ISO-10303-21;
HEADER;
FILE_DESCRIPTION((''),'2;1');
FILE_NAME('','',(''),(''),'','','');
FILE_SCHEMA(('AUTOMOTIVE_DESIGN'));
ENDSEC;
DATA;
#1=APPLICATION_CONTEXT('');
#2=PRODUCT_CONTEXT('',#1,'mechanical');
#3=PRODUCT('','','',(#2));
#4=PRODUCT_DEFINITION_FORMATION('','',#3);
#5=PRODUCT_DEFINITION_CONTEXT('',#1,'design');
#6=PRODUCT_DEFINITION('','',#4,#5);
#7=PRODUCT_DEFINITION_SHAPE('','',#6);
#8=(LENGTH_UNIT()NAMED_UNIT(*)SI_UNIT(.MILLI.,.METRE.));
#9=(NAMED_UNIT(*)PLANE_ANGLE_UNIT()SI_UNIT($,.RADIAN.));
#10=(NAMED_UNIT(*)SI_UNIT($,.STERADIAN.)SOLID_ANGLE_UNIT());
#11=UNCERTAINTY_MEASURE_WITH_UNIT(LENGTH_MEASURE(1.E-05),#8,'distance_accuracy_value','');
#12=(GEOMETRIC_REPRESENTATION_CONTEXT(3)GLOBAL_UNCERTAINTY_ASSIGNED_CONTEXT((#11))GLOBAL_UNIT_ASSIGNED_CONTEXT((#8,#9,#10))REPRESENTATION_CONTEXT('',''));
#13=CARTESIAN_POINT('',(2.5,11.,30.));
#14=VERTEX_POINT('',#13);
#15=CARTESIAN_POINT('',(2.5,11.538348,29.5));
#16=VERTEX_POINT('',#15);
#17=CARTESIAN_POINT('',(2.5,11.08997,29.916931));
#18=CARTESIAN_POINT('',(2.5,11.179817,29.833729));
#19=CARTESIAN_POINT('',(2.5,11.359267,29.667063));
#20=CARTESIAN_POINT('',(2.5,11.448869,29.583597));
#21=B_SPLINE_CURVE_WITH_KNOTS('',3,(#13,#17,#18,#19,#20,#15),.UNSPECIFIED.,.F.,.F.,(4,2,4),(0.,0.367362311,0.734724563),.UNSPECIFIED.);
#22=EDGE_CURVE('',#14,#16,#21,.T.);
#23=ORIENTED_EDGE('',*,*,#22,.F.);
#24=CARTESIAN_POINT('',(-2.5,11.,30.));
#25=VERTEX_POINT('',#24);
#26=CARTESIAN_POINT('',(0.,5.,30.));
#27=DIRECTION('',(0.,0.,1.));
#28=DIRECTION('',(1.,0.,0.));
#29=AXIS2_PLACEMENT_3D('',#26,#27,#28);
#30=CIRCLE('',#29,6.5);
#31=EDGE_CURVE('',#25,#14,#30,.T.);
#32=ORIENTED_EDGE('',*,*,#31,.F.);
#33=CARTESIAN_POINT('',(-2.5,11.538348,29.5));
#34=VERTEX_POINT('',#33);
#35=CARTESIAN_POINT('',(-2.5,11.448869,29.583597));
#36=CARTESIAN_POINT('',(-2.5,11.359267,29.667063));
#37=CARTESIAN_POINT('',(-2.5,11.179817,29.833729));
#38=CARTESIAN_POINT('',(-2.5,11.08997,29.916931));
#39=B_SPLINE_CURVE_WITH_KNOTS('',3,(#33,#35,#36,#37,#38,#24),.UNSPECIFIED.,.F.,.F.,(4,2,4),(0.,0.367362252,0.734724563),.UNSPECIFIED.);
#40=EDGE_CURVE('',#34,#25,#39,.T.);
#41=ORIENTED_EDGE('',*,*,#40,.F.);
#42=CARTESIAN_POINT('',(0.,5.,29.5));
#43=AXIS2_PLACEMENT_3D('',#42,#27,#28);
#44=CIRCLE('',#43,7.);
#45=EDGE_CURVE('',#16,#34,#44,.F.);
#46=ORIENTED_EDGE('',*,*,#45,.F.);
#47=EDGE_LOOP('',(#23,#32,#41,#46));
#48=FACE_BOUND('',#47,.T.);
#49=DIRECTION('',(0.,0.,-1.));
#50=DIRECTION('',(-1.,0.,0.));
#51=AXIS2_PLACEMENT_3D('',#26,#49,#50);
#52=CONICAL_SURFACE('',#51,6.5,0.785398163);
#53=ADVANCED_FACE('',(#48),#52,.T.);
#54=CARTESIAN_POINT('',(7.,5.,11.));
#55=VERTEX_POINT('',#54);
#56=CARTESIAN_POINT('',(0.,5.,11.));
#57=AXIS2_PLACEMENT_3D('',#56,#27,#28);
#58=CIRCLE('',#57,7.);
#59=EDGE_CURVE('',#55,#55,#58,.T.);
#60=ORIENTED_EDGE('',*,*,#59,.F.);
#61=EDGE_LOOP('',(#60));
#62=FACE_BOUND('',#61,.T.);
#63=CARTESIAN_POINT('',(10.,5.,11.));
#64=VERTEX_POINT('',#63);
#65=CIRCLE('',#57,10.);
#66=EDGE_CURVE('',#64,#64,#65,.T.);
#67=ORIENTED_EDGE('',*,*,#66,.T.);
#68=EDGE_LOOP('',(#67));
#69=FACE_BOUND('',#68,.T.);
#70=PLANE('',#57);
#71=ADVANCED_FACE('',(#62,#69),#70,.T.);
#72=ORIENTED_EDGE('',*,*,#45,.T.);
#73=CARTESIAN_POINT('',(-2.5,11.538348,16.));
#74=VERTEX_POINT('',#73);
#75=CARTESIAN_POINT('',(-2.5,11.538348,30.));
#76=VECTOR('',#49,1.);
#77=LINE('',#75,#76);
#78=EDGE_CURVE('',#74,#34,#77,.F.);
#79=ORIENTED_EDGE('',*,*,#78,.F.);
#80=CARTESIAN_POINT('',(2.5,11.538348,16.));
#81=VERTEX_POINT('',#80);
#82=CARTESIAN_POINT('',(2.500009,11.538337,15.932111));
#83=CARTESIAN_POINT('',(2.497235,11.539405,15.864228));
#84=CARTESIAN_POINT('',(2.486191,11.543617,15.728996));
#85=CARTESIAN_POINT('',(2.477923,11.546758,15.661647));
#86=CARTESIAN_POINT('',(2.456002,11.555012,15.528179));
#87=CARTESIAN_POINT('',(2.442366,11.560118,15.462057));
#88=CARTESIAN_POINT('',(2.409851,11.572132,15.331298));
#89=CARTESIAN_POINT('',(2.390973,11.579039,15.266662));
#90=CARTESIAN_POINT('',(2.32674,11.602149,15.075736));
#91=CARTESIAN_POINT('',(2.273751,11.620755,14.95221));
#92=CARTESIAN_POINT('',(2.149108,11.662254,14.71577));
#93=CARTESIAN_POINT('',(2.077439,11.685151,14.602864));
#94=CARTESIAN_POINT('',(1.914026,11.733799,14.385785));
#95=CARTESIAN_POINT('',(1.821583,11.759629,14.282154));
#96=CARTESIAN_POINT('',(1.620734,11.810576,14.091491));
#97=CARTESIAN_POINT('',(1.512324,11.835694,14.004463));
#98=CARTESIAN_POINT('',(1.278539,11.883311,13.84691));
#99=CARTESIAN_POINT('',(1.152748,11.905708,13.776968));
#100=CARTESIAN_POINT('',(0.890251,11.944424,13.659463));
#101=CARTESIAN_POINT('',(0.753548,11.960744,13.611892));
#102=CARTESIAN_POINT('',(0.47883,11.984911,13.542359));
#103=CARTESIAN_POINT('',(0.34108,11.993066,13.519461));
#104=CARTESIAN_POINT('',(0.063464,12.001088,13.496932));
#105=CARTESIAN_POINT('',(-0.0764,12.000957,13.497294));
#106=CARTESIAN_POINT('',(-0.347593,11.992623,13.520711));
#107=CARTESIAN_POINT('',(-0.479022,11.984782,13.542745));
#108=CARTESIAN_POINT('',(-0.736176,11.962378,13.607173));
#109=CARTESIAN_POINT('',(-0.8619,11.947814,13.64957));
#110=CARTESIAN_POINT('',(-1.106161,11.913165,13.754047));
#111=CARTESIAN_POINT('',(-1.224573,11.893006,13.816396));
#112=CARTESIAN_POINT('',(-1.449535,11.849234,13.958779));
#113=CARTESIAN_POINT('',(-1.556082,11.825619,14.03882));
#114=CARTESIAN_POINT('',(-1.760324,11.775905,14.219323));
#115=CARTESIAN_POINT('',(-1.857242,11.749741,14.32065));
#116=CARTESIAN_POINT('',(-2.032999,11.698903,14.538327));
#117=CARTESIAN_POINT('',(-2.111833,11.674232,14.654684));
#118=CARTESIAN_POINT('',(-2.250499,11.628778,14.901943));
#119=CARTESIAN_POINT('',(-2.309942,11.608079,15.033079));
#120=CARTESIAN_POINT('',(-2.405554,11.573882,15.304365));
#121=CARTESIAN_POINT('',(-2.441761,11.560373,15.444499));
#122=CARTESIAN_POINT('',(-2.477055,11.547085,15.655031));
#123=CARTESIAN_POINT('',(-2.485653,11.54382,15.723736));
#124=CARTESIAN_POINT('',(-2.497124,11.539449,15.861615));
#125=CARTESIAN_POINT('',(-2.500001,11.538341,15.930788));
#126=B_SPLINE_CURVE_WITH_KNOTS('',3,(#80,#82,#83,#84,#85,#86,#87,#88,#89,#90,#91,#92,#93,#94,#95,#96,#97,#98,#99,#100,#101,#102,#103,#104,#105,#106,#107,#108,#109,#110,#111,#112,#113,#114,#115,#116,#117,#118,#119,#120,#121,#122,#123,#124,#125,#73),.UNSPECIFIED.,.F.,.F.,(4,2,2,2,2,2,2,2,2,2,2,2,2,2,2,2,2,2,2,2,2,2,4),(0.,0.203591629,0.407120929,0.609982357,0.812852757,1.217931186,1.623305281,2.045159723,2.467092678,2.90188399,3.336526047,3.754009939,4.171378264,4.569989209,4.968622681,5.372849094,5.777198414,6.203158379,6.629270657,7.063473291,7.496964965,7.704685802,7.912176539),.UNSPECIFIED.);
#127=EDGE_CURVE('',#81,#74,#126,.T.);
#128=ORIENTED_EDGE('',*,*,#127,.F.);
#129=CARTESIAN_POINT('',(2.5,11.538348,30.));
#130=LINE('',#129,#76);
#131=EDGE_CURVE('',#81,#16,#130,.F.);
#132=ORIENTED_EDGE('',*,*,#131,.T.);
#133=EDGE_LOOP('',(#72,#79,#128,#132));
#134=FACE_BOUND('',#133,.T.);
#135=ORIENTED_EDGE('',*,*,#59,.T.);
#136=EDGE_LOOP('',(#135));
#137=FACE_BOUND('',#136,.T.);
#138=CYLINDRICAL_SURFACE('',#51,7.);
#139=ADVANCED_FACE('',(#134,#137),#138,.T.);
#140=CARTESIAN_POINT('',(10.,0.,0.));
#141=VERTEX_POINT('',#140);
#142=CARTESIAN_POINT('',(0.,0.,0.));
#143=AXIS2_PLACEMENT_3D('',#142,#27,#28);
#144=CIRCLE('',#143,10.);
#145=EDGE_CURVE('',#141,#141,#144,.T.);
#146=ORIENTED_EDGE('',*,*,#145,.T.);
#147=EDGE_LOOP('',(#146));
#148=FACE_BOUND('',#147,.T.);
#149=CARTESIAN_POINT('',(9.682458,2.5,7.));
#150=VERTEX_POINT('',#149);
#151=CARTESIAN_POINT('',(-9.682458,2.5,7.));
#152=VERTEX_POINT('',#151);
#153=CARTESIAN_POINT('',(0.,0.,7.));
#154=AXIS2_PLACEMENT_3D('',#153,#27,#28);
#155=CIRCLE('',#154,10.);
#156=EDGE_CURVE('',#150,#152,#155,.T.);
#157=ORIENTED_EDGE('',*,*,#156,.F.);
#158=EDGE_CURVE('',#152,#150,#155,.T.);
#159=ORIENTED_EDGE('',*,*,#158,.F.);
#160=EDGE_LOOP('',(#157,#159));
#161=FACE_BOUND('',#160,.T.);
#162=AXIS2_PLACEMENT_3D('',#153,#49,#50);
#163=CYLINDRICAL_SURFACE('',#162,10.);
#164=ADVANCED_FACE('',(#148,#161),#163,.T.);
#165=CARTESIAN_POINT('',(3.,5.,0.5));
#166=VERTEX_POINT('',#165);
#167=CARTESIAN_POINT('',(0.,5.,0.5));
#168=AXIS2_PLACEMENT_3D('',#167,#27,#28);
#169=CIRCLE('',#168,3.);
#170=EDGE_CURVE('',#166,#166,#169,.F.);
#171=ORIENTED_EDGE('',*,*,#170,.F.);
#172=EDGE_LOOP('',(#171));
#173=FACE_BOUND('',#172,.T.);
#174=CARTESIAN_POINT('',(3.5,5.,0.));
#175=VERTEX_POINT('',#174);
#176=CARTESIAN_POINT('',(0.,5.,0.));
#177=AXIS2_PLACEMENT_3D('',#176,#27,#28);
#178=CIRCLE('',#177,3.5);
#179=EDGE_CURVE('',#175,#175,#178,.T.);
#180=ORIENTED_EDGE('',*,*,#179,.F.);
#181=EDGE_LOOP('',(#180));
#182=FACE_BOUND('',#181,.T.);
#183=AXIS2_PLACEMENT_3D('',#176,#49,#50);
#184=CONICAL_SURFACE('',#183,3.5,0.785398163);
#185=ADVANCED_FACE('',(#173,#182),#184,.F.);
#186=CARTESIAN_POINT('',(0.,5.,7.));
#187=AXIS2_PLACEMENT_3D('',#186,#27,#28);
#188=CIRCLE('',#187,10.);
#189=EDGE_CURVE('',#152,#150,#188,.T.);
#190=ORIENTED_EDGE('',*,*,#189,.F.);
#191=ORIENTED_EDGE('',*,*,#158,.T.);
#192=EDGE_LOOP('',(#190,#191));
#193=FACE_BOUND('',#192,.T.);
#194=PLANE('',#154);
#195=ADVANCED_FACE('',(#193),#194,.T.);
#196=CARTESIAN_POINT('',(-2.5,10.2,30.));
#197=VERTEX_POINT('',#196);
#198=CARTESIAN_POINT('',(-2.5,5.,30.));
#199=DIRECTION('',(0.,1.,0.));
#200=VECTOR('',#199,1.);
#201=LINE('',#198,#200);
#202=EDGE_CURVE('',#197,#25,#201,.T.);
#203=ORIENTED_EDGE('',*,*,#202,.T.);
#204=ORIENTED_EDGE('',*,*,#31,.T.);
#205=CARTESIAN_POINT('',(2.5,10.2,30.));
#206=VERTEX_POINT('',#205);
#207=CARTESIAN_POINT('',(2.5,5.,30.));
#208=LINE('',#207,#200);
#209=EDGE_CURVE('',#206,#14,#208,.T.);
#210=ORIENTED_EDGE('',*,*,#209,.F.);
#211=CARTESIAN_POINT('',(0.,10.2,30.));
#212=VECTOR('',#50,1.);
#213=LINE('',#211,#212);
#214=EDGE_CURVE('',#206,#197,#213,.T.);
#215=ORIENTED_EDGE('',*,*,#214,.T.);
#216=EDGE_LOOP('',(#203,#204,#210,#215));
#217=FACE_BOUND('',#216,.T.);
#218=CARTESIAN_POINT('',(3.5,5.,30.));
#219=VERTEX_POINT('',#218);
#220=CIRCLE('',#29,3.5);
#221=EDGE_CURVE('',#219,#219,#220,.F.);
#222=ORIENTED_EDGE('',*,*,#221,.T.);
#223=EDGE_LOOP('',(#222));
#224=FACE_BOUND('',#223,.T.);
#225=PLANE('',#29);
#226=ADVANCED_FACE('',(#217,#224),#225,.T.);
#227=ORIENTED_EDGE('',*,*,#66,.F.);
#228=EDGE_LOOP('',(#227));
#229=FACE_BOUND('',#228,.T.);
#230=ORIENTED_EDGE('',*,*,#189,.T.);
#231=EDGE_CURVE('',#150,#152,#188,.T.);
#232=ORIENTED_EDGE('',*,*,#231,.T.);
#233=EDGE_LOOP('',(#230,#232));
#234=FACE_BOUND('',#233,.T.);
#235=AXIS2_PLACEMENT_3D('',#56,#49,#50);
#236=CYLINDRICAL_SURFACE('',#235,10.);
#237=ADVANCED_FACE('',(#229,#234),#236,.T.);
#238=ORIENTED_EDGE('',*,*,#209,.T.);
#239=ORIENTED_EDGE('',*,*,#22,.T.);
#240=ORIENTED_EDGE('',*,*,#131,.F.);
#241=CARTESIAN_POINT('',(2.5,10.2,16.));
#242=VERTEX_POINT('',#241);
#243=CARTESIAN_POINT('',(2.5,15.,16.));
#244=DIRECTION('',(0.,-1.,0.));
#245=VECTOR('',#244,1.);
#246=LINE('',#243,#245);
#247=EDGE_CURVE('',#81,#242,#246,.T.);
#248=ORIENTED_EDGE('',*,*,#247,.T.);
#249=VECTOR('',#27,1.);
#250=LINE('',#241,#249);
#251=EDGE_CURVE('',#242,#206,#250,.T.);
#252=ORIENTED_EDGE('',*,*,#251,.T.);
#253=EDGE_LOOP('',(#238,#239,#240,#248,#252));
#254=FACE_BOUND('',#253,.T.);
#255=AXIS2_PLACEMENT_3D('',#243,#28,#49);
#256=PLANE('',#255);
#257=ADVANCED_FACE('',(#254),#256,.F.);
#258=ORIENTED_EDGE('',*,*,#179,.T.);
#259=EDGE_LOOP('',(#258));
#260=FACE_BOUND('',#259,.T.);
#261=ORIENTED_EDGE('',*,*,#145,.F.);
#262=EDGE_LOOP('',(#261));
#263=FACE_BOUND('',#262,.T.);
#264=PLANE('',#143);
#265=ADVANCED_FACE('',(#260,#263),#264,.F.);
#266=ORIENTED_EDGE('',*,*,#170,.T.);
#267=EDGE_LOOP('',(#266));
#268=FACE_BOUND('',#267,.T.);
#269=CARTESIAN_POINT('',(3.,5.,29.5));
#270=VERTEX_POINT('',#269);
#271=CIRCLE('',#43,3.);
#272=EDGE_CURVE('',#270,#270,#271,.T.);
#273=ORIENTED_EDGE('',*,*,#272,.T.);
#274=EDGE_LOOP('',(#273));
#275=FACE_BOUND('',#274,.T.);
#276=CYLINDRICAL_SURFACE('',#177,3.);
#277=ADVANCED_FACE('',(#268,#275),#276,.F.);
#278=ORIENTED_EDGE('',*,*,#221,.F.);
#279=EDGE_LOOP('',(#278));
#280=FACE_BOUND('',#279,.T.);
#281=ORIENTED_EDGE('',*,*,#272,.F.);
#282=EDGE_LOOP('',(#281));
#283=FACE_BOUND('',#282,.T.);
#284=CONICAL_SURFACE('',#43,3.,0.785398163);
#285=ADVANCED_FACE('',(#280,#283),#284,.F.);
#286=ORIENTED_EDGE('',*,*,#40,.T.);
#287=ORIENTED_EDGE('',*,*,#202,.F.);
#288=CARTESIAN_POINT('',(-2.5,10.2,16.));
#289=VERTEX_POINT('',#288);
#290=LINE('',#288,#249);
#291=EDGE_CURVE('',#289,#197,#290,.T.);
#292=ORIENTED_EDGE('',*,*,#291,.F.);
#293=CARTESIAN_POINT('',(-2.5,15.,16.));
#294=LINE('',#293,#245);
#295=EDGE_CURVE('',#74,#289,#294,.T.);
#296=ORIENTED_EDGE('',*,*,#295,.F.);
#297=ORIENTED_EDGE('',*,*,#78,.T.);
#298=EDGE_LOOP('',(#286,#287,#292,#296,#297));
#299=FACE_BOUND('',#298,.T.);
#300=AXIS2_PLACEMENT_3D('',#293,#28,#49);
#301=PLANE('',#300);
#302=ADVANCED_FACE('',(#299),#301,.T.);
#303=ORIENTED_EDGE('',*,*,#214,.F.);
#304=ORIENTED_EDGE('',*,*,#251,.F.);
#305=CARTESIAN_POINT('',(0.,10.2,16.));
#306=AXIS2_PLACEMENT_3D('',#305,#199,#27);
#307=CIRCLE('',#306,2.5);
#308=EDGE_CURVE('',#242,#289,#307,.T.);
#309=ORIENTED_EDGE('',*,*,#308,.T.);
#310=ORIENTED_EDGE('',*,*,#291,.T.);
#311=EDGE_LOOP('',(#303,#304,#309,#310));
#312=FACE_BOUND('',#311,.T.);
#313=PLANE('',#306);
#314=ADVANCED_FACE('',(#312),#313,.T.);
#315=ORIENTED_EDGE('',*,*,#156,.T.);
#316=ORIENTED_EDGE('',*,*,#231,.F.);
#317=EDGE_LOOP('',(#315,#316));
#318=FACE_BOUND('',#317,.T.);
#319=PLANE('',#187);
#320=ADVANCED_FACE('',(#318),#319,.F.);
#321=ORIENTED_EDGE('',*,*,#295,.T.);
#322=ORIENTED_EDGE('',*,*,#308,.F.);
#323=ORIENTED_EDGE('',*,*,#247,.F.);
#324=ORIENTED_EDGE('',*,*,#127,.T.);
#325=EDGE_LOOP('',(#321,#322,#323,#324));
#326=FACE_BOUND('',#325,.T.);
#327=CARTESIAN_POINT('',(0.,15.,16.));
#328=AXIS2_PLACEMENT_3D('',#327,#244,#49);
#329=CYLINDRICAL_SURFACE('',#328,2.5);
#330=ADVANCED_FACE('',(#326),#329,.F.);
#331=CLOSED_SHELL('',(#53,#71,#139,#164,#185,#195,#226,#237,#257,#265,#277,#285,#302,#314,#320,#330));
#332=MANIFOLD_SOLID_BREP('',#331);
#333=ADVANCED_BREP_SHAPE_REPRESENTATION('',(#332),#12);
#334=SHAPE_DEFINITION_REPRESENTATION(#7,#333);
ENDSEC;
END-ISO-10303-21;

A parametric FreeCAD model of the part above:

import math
import FreeCAD as App
import Part
import Sketcher
from FreeCAD import Vector


def edges_at(feature, points):
    """Names of the edges that pass closest to the given points."""
    edges = feature.Shape.Edges
    near = lambda p: min(range(len(edges)), key=lambda i: edges[i].distToShape(Part.Vertex(*p))[0])
    return sorted({f"Edge{near(p) + 1}" for p in points})

doc = App.newDocument("Part")
body = doc.addObject("PartDesign::Body", "Body")

# Sketch on XY plane
sketch1 = body.newObject("Sketcher::SketchObject", "Sketch")
sketch1.AttachmentSupport = (doc.getObject("XY_Plane"), [""])
sketch1.MapMode = "FlatFace"
sketch1.addGeometry(Part.Circle(Vector(0, 0, 0), Vector(0, 0, 1), 10), False)
sketch1.addConstraint([
    Sketcher.Constraint("Coincident", 0, 3, -1, 1),
    Sketcher.Constraint("Diameter", 0, 20.0),
])
pad1 = body.newObject("PartDesign::Pad", "Pad")
pad1.Profile = sketch1
pad1.Length = 7

# Sketch on XY plane
sketch2 = body.newObject("Sketcher::SketchObject", "Sketch001")
sketch2.AttachmentSupport = (doc.getObject("XY_Plane"), [""])
sketch2.MapMode = "FlatFace"
sketch2.AttachmentOffset = App.Placement(Vector(0, 0, 7), App.Rotation())
sketch2.addGeometry(Part.Circle(Vector(0, 5, 0), Vector(0, 0, 1), 10), False)
sketch2.addConstraint([
    Sketcher.Constraint("PointOnObject", 0, 3, -2),
    Sketcher.Constraint("Diameter", 0, 20.0),
    Sketcher.Constraint("DistanceY", -1, 1, 0, 3, 5.0),
])
pad2 = body.newObject("PartDesign::Pad", "Pad001")
pad2.Profile = sketch2
pad2.Length = 4

# Sketch on XY plane
sketch3 = body.newObject("Sketcher::SketchObject", "Sketch002")
sketch3.AttachmentSupport = (doc.getObject("XY_Plane"), [""])
sketch3.MapMode = "FlatFace"
sketch3.AttachmentOffset = App.Placement(Vector(0, 0, 11), App.Rotation())
sketch3.addGeometry(Part.Circle(Vector(0, 5, 0), Vector(0, 0, 1), 7), False)
sketch3.addConstraint([
    Sketcher.Constraint("PointOnObject", 0, 3, -2),
    Sketcher.Constraint("Diameter", 0, 14.0),
    Sketcher.Constraint("DistanceY", -1, 1, 0, 3, 5.0),
])
pad3 = body.newObject("PartDesign::Pad", "Pad002")
pad3.Profile = sketch3
pad3.Length = 19

# Sketch on XY plane
sketch4 = body.newObject("Sketcher::SketchObject", "Sketch003")
sketch4.AttachmentSupport = (doc.getObject("XY_Plane"), [""])
sketch4.MapMode = "FlatFace"
sketch4.AttachmentOffset = App.Placement(Vector(0, 0, 30), App.Rotation())
sketch4.addGeometry(Part.Circle(Vector(0, 5, 0), Vector(0, 0, 1), 3), False)
sketch4.addConstraint([
    Sketcher.Constraint("PointOnObject", 0, 3, -2),
    Sketcher.Constraint("Diameter", 0, 6.0),
    Sketcher.Constraint("DistanceY", -1, 1, 0, 3, 5.0),
])
pocket1 = body.newObject("PartDesign::Pocket", "Pocket")
pocket1.Profile = sketch4
pocket1.Type = "ThroughAll"
doc.recompute()

chamfer = body.newObject("PartDesign::Chamfer", "Chamfer")
chamfer.Base = (pocket1, edges_at(pocket1, [(-3, 5, 0), (-3, 5, 30)]))
chamfer.Size = 0.5

# Sketch on XZ plane
sketch5 = body.newObject("Sketcher::SketchObject", "Sketch004")
sketch5.AttachmentSupport = (doc.getObject("XZ_Plane"), [""])
sketch5.MapMode = "FlatFace"
sketch5.AttachmentOffset = App.Placement(Vector(0, 0, -10.2), App.Rotation())
sketch5.addGeometry([
    Part.LineSegment(Vector(-2.5, 16, 0), Vector(-2.5, 31.7, 0)),
    Part.LineSegment(Vector(-2.5, 31.7, 0), Vector(2.5, 31.7, 0)),
    Part.LineSegment(Vector(2.5, 31.7, 0), Vector(2.5, 16, 0)),
    Part.ArcOfCircle(Part.Circle(Vector(0, 16, 0), Vector(0, 0, 1), 2.5), math.radians(180), math.radians(360)),
], False)
sketch5.addConstraint([
    Sketcher.Constraint("Coincident", 0, 2, 1, 1),
    Sketcher.Constraint("Coincident", 1, 2, 2, 1),
    Sketcher.Constraint("Tangent", 2, 2, 3, 2),
    Sketcher.Constraint("Tangent", 3, 1, 0, 1),
    Sketcher.Constraint("Vertical", 0),
    Sketcher.Constraint("Horizontal", 1),
    Sketcher.Constraint("Vertical", 2),
    Sketcher.Constraint("PointOnObject", 3, 3, -2),
    Sketcher.Constraint("Radius", 3, 2.5),
    Sketcher.Constraint("DistanceY", -1, 1, 3, 3, 16.0),
    Sketcher.Constraint("DistanceY", 0, 1, 0, 2, 15.730266),
])
pocket2 = body.newObject("PartDesign::Pocket", "Pocket001")
pocket2.Profile = sketch5
pocket2.Type = "ThroughAll"
doc.recompute()

chamfer2 = body.newObject("PartDesign::Chamfer", "Chamfer001")
chamfer2.Base = (pocket2, edges_at(pocket2, [(-3.969, -0.766, 30)]))
chamfer2.Size = 0.5

doc.recompute()
